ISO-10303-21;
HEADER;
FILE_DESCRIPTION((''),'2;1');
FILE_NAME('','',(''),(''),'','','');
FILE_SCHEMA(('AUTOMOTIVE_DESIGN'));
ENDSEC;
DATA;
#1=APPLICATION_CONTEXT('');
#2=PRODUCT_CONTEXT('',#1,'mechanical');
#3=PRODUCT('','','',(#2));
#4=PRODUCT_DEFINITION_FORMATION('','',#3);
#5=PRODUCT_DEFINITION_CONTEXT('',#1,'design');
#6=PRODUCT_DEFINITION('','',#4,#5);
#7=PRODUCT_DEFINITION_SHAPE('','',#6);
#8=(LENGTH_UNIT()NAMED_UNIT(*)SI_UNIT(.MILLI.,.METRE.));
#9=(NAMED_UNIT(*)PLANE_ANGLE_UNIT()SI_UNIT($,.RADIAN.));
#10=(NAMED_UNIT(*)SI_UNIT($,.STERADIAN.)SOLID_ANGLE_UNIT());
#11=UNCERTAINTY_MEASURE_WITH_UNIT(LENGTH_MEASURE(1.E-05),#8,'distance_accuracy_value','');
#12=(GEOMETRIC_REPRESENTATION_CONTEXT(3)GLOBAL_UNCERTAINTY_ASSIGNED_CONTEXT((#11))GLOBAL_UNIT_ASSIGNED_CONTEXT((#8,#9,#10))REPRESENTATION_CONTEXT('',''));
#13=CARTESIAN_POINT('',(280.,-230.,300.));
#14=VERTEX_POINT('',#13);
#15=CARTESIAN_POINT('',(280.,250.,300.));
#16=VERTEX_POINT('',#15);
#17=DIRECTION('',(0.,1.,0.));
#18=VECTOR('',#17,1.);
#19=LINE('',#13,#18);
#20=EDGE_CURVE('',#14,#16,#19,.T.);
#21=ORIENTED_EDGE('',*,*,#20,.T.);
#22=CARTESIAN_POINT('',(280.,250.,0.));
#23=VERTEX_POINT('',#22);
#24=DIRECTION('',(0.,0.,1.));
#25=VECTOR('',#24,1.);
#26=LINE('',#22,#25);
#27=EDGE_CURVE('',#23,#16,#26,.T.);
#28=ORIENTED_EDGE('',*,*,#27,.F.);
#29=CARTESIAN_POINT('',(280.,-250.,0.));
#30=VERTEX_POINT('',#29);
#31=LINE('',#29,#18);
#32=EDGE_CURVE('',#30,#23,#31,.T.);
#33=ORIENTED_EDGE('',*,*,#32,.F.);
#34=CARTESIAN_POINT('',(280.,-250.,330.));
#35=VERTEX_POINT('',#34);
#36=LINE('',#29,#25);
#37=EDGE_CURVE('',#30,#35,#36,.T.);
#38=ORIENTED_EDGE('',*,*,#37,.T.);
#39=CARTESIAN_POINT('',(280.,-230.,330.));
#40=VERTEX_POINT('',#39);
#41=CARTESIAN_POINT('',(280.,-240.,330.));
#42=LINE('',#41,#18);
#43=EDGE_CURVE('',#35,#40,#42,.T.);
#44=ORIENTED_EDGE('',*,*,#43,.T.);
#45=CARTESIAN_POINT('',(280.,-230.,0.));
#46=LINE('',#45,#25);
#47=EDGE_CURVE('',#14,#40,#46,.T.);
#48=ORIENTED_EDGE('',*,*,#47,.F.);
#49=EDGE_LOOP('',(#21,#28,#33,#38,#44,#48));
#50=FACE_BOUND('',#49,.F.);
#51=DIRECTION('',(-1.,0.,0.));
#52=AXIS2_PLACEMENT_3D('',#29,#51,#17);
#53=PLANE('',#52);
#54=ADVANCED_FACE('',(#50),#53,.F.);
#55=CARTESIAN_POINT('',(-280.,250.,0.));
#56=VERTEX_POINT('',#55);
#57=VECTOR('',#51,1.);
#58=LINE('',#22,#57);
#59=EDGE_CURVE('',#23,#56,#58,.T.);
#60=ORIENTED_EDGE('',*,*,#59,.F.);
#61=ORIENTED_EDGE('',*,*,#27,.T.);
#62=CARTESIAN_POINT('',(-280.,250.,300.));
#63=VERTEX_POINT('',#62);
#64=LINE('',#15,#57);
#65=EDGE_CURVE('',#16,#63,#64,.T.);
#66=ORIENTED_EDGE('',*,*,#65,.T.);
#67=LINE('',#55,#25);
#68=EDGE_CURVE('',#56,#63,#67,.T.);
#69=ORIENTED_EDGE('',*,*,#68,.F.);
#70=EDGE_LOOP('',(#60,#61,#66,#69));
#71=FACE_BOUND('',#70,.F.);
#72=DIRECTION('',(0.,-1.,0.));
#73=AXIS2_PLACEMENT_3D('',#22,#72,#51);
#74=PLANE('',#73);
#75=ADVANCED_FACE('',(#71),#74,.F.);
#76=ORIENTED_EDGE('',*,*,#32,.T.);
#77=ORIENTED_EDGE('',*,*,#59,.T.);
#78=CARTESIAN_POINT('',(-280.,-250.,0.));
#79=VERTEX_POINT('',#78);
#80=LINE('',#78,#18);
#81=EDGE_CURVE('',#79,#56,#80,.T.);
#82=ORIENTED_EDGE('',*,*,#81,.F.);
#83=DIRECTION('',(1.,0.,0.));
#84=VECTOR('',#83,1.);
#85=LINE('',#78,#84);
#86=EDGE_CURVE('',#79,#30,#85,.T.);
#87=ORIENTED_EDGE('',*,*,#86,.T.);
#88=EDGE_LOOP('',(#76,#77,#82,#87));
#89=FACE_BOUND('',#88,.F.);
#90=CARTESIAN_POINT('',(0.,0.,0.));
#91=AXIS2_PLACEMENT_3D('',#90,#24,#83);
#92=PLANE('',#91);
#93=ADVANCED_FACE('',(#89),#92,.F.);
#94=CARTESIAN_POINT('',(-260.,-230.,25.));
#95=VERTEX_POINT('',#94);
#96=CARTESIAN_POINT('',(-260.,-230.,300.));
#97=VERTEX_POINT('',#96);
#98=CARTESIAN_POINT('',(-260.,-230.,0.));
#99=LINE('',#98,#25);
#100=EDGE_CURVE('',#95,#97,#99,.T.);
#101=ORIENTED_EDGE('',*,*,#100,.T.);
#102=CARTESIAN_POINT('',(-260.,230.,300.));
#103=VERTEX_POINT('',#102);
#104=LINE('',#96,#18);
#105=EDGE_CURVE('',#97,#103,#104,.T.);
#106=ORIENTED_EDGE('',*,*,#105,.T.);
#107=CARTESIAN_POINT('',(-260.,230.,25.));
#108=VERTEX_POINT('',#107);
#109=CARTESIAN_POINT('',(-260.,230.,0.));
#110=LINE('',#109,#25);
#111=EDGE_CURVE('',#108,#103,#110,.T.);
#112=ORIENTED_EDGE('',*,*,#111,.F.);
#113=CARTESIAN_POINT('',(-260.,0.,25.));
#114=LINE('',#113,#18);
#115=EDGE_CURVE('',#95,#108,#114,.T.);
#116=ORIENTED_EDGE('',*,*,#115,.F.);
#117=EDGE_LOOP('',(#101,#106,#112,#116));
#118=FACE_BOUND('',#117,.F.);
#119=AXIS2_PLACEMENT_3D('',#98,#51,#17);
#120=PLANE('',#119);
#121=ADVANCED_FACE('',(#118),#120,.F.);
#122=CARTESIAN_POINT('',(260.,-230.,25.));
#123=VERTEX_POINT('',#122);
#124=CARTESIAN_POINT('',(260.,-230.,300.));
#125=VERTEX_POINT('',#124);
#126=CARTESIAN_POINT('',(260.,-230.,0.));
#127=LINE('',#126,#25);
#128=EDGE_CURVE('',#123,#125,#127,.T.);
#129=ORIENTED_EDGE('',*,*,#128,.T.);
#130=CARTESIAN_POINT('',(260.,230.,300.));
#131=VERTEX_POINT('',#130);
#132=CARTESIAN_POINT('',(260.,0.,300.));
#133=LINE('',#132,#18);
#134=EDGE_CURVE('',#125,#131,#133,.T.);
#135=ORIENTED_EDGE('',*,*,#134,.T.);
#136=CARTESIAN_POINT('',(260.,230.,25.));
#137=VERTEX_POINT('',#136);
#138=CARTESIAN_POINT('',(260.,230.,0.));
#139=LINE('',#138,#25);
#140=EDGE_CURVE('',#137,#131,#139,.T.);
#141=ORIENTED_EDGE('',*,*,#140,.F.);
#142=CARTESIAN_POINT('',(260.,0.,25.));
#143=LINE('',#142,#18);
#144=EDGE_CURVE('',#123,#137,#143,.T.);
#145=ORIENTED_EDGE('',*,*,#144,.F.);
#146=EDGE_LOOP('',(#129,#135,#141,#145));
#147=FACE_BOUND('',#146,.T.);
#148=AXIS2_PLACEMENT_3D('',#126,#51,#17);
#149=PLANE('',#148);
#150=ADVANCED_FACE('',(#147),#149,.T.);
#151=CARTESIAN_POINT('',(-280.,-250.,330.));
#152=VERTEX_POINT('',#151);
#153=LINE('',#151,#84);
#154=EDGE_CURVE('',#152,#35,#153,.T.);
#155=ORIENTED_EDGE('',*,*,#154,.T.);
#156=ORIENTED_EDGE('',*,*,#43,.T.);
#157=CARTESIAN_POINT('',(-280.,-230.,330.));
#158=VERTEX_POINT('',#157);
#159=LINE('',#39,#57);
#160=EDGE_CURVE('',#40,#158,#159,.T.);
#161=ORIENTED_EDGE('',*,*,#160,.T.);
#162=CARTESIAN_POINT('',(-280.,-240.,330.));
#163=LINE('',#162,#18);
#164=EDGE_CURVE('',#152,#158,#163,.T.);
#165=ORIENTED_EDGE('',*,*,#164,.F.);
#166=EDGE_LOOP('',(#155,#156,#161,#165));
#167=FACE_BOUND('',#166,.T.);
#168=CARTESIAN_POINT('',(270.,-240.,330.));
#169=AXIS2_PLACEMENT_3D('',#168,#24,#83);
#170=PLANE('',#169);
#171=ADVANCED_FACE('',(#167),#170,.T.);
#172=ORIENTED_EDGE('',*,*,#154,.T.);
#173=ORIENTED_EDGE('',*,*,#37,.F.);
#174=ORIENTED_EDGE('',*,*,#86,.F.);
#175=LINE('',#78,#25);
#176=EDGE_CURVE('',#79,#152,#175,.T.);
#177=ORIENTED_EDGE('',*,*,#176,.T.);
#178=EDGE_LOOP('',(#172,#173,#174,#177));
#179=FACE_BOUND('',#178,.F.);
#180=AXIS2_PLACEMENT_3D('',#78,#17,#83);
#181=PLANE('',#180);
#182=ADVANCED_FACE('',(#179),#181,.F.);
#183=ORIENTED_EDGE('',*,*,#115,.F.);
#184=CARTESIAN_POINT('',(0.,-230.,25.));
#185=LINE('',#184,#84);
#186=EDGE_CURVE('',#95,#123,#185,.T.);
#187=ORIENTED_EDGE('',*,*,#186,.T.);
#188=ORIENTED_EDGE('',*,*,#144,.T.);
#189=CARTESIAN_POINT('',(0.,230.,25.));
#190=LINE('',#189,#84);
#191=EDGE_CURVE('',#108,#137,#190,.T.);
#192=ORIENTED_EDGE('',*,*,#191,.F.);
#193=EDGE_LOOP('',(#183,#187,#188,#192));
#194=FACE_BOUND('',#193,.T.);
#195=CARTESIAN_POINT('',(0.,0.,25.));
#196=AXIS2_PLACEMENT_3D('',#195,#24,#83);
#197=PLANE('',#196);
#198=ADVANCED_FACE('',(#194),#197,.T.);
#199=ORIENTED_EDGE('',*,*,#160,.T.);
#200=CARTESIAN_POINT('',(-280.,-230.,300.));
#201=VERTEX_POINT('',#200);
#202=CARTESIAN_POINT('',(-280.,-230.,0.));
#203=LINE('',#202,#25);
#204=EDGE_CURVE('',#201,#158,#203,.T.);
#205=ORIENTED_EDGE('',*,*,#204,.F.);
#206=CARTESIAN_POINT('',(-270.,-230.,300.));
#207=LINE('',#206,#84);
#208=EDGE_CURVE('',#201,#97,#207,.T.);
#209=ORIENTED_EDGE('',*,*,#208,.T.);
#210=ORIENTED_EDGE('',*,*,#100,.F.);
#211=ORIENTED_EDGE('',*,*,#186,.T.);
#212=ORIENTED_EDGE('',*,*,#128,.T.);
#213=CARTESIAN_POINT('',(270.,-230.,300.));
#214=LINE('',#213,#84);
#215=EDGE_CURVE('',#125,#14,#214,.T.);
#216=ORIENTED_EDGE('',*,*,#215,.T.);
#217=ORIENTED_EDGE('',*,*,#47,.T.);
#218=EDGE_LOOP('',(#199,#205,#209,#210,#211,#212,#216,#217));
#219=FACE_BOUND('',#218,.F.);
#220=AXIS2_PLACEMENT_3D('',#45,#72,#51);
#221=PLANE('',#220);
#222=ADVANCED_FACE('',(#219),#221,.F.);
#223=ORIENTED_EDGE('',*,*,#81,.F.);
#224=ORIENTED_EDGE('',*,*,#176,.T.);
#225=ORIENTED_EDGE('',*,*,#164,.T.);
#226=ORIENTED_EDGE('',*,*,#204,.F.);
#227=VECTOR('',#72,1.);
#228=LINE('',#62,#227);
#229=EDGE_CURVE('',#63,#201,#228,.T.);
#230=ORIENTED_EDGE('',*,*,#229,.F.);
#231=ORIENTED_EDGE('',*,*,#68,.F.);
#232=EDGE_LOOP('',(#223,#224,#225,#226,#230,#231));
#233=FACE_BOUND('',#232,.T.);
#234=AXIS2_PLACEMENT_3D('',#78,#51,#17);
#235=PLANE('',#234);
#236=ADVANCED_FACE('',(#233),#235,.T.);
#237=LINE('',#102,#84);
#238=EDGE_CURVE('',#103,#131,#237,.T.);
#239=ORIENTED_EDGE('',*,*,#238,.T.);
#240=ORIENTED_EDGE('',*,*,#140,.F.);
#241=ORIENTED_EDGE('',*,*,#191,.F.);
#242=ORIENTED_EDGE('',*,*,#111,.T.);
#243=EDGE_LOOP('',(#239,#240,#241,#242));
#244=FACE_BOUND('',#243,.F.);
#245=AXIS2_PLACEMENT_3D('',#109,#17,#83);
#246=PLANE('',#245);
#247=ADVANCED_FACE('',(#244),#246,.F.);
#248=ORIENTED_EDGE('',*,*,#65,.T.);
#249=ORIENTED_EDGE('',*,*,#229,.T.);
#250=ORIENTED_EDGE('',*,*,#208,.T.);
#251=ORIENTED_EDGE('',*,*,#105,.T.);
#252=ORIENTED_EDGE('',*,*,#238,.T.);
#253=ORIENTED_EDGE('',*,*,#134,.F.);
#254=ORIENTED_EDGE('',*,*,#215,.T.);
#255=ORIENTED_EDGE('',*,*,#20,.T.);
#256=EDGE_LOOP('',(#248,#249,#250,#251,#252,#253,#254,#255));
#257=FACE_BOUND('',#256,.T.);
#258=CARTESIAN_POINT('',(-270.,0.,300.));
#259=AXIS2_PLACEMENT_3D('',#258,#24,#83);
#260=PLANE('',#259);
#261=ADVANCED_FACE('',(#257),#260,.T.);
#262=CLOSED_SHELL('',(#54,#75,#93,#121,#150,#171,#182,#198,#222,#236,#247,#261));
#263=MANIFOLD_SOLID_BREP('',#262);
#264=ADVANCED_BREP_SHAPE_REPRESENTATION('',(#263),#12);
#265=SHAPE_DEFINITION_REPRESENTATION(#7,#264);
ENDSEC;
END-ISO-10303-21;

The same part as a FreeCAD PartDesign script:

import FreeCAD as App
import Part
import Sketcher

V = App.Vector

doc = App.newDocument("Part")
body = doc.addObject("PartDesign::Body", "Body")

sketch1 = body.newObject("Sketcher::SketchObject", "Sketch")
sketch1.AttachmentSupport = (doc.getObject("XY_Plane"), [""])
sketch1.MapMode = "FlatFace"
sketch1.addGeometry([
    Part.LineSegment(V(-280, -230, 0), V(-260, -230, 0)),
    Part.LineSegment(V(-260, -230, 0), V(-260, 230, 0)),
    Part.LineSegment(V(-260, 230, 0), V(260, 230, 0)),
    Part.LineSegment(V(260, 230, 0), V(260, -230, 0)),
    Part.LineSegment(V(260, -230, 0), V(280, -230, 0)),
    Part.LineSegment(V(280, -230, 0), V(280, 250, 0)),
    Part.LineSegment(V(280, 250, 0), V(-280, 250, 0)),
    Part.LineSegment(V(-280, 250, 0), V(-280, -230, 0)),
], False)
sketch1.addConstraint([
    Sketcher.Constraint("Coincident", 0, 2, 1, 1),
    Sketcher.Constraint("Coincident", 1, 2, 2, 1),
    Sketcher.Constraint("Coincident", 2, 2, 3, 1),
    Sketcher.Constraint("Coincident", 3, 2, 4, 1),
    Sketcher.Constraint("Coincident", 4, 2, 5, 1),
    Sketcher.Constraint("Coincident", 5, 2, 6, 1),
    Sketcher.Constraint("Coincident", 6, 2, 7, 1),
    Sketcher.Constraint("Coincident", 7, 2, 0, 1),
    Sketcher.Constraint("Horizontal", 0),
    Sketcher.Constraint("Vertical", 1),
    Sketcher.Constraint("Horizontal", 2),
    Sketcher.Constraint("Vertical", 3),
    Sketcher.Constraint("Horizontal", 4),
    Sketcher.Constraint("Vertical", 5),
    Sketcher.Constraint("Horizontal", 6),
    Sketcher.Constraint("Vertical", 7),
    Sketcher.Constraint("Symmetric", 0, 2, 2, 2, -1, 1),
    Sketcher.Constraint("Symmetric", 4, 2, 7, 2, -2),
    Sketcher.Constraint("DistanceX", 0, 1, 0, 2, 20.0),
    Sketcher.Constraint("DistanceX", 2, 1, 2, 2, 520.0),
    Sketcher.Constraint("DistanceY", 1, 1, 1, 2, 460.0),
    Sketcher.Constraint("DistanceY", 5, 1, 5, 2, 480.0),
])
pad1 = body.newObject("PartDesign::Pad", "Pad")
pad1.Profile = sketch1
pad1.Length = 300

sketch2 = body.newObject("Sketcher::SketchObject", "Sketch001")
sketch2.AttachmentSupport = (doc.getObject("XY_Plane"), [""])
sketch2.MapMode = "FlatFace"
sketch2.addGeometry([
    Part.LineSegment(V(280, -250, 0), V(280, -230, 0)),
    Part.LineSegment(V(280, -230, 0), V(-280, -230, 0)),
    Part.LineSegment(V(-280, -230, 0), V(-280, -250, 0)),
    Part.LineSegment(V(-280, -250, 0), V(280, -250, 0)),
], False)
sketch2.addConstraint([
    Sketcher.Constraint("Coincident", 0, 2, 1, 1),
    Sketcher.Constraint("Coincident", 1, 2, 2, 1),
    Sketcher.Constraint("Coincident", 2, 2, 3, 1),
    Sketcher.Constraint("Coincident", 3, 2, 0, 1),
    Sketcher.Constraint("Vertical", 0),
    Sketcher.Constraint("Horizontal", 1),
    Sketcher.Constraint("Vertical", 2),
    Sketcher.Constraint("Horizontal", 3),
    Sketcher.Constraint("DistanceX", 1, 2, 1, 1, 560.0),
    Sketcher.Constraint("DistanceY", 0, 1, 0, 2, 20.0),
    Sketcher.Constraint("DistanceX", -1, 1, 0, 2, 280.0),
    Sketcher.Constraint("DistanceY", 0, 2, -1, 1, 230.0),
])
pad2 = body.newObject("PartDesign::Pad", "Pad001")
pad2.Profile = sketch2
pad2.Length = 330

sketch3 = body.newObject("Sketcher::SketchObject", "Sketch002")
sketch3.AttachmentSupport = (doc.getObject("XY_Plane"), [""])
sketch3.MapMode = "FlatFace"
sketch3.addGeometry([
    Part.LineSegment(V(-260, 230, 0), V(-260, -230, 0)),
    Part.LineSegment(V(-260, -230, 0), V(260, -230, 0)),
    Part.LineSegment(V(260, -230, 0), V(260, 230, 0)),
    Part.LineSegment(V(260, 230, 0), V(-260, 230, 0)),
], False)
sketch3.addConstraint([
    Sketcher.Constraint("Coincident", 0, 2, 1, 1),
    Sketcher.Constraint("Coincident", 1, 2, 2, 1),
    Sketcher.Constraint("Coincident", 2, 2, 3, 1),
    Sketcher.Constraint("Coincident", 3, 2, 0, 1),
    Sketcher.Constraint("Vertical", 0),
    Sketcher.Constraint("Horizontal", 1),
    Sketcher.Constraint("Vertical", 2),
    Sketcher.Constraint("Horizontal", 3),
    Sketcher.Constraint("Symmetric", 0, 2, 2, 2, -1, 1),
    Sketcher.Constraint("DistanceX", 1, 1, 1, 2, 520.0),
    Sketcher.Constraint("DistanceY", 0, 2, 0, 1, 460.0),
])
pad3 = body.newObject("PartDesign::Pad", "Pad002")
pad3.Profile = sketch3
pad3.Length = 25

doc.recompute()
